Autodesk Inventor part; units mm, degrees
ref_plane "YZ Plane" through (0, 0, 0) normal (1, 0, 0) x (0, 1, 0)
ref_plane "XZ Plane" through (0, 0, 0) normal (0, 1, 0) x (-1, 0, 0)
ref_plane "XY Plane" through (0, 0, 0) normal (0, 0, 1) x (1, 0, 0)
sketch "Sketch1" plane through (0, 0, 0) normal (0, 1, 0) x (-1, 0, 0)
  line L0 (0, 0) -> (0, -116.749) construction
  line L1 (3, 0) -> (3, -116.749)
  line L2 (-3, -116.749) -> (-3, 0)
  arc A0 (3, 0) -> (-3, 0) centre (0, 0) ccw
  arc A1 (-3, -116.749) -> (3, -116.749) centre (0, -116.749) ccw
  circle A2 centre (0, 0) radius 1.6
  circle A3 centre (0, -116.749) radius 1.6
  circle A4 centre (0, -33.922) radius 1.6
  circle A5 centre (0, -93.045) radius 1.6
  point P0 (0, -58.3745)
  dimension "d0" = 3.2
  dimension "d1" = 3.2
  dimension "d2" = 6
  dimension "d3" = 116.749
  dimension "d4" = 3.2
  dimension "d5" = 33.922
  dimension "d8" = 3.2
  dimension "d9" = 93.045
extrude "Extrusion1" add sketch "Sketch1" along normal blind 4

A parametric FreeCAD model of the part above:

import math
import FreeCAD as App
import Part
import Sketcher

V = App.Vector
Q = App.Units.Quantity

doc = App.newDocument("Part")
body = doc.addObject("PartDesign::Body", "Body")

# Sketch on XZ plane
sketch1 = body.newObject("Sketcher::SketchObject", "Sketch")
sketch1.AttachmentSupport = (doc.getObject("XZ_Plane"), [""])
sketch1.MapMode = "FlatFace"
sketch1.addGeometry(Part.LineSegment(V(-3, -116.7, 0), V(-3, 0, 0)), False)
sketch1.addGeometry(Part.ArcOfCircle(Part.Circle(V(0, 0, 0), V(0, 0, 1), 3), math.radians(0), math.radians(180)), False)
sketch1.addGeometry(Part.LineSegment(V(3, 0, 0), V(3, -116.7, 0)), False)
sketch1.addGeometry(Part.ArcOfCircle(Part.Circle(V(0, -116.7, 0), V(0, 0, 1), 3), math.radians(180), math.radians(360)), False)
sketch1.addGeometry(Part.Circle(V(0, -116.7, 0), V(0, 0, 1), 1.6), False)
sketch1.addGeometry(Part.Circle(V(0, -93, 0), V(0, 0, 1), 1.6), False)
sketch1.addGeometry(Part.Circle(V(0, -33.9, 0), V(0, 0, 1), 1.6), False)
sketch1.addGeometry(Part.Circle(V(0, 0, 0), V(0, 0, 1), 1.6), False)
sketch1.addConstraint(Sketcher.Constraint("Tangent", 0, 2, 1, 2))
sketch1.addConstraint(Sketcher.Constraint("Tangent", 1, 1, 2, 1))
sketch1.addConstraint(Sketcher.Constraint("Tangent", 2, 2, 3, 2))
sketch1.addConstraint(Sketcher.Constraint("Tangent", 3, 1, 0, 1))
sketch1.addConstraint(Sketcher.Constraint("Vertical", 0))
sketch1.addConstraint(Sketcher.Constraint("Vertical", 2))
sketch1.addConstraint(Sketcher.Constraint("Coincident", 1, 3, -1, 1))
sketch1.addConstraint(Sketcher.Constraint("Coincident", 7, 3, -1, 1))
sketch1.addConstraint(Sketcher.Constraint("Coincident", 4, 3, 3, 3))
sketch1.addConstraint(Sketcher.Constraint("Equal", 4, 5))
sketch1.addConstraint(Sketcher.Constraint("Equal", 5, 6))
sketch1.addConstraint(Sketcher.Constraint("Equal", 6, 7))
sketch1.addConstraint(Sketcher.Constraint("PointOnObject", 5, 3, -2))
sketch1.addConstraint(Sketcher.Constraint("PointOnObject", 6, 3, -2))
sketch1.addConstraint(Sketcher.Constraint("Radius", 1, Q("3 mm")))
sketch1.addConstraint(Sketcher.Constraint("Diameter", 4, Q("3.2 mm")))
sketch1.addConstraint(Sketcher.Constraint("DistanceY", 0, 1, 0, 2, Q("116.749 mm")))
sketch1.addConstraint(Sketcher.Constraint("DistanceY", 5, 3, -1, 1, Q("93.045 mm")))
sketch1.addConstraint(Sketcher.Constraint("DistanceY", 6, 3, -1, 1, Q("33.922 mm")))
pad1 = body.newObject("PartDesign::Pad", "Pad")
pad1.Profile = sketch1
pad1.Length = 4
pad1.Reversed = True

doc.recompute()
